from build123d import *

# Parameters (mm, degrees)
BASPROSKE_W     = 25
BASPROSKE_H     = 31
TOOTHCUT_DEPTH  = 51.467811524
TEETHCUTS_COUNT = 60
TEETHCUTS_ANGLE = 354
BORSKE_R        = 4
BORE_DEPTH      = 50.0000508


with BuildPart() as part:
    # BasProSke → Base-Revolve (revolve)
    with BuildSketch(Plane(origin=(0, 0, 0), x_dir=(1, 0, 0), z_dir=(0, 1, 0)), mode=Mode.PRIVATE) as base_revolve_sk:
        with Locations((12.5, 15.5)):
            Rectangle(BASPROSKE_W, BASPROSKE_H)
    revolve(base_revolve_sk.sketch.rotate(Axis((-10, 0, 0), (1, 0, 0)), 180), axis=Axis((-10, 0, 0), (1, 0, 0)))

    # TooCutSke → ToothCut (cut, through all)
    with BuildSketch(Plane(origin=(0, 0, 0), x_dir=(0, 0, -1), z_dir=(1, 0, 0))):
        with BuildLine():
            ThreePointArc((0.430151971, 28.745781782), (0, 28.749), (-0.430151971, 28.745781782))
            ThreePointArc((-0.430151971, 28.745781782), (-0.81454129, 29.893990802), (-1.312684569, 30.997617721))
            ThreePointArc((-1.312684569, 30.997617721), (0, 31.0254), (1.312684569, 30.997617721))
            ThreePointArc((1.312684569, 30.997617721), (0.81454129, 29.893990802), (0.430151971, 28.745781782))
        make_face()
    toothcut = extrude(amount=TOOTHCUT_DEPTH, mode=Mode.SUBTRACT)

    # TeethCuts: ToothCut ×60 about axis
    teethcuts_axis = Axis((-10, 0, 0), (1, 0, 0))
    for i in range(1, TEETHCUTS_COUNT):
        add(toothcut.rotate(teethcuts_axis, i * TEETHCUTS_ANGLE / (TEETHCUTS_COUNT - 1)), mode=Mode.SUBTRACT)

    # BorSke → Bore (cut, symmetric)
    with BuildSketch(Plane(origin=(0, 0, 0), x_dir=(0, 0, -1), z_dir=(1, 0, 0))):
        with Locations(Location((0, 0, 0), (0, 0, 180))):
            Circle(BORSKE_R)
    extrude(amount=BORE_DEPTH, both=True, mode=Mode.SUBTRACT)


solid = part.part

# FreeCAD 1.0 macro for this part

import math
import FreeCAD as App
import Part
import Sketcher


def add_polygon(sketch, points):
    """Adds a closed chain of lines whose ends are joined by coincident constraints."""
    first, n = sketch.GeometryCount, len(points)
    for a, b in zip(points, points[1:] + points[:1]):
        sketch.addGeometry(Part.LineSegment(App.Vector(*a, 0), App.Vector(*b, 0)), False)
    for i in range(n):
        sketch.addConstraint(Sketcher.Constraint("Coincident", first + i, 2, first + (i + 1) % n, 1))

doc = App.newDocument("Part")
body = doc.addObject("PartDesign::Body", "Body")

# Sketch on XZ plane
sketch1 = doc.addObject("Sketcher::SketchObject", "Sketch")
body.addObject(sketch1)
sketch1.AttachmentSupport = (doc.XZ_Plane, [""])
sketch1.MapMode = "FlatFace"
add_polygon(sketch1, [(0, -31), (0, 0), (25, 0), (25, -31)])  # lines 0-3
sketch1.addConstraint([
    Sketcher.Constraint("Vertical", 0),
    Sketcher.Constraint("Horizontal", 1),
    Sketcher.Constraint("Vertical", 2),
    Sketcher.Constraint("Horizontal", 3),
    Sketcher.Constraint("Coincident", 0, 2, -1, 1),
    Sketcher.Constraint("DistanceX", 1, 1, 1, 2, 25.0),
    Sketcher.Constraint("DistanceY", 0, 1, 0, 2, 31.0),
])
revolution = doc.addObject("PartDesign::Revolution", "Revolution")
body.addObject(revolution)
revolution.Profile = sketch1
revolution.ReferenceAxis = (sketch1, ["H_Axis"])
revolution.Angle = 360

# Sketch on YZ plane
sketch2 = doc.addObject("Sketcher::SketchObject", "Sketch001")
body.addObject(sketch2)
sketch2.AttachmentSupport = (doc.YZ_Plane, [""])
sketch2.MapMode = "FlatFace"
sketch2.addGeometry([
    Part.ArcOfCircle(Part.Circle(App.Vector(0.000004, 0, 0), App.Vector(0, 0, 1), 28.748996), math.radians(-0.85731), math.radians(0.85731)),
    Part.ArcOfCircle(Part.Circle(App.Vector(25.515264, -11.98713, 0), App.Vector(0, 0, 1), 12), math.radians(62.815145), math.radians(74.382749)),
    Part.ArcOfCircle(Part.Circle(App.Vector(0, 0, 0), App.Vector(0, 0, 1), 31.0254), math.radians(-2.424908), math.radians(2.424908)),
    Part.ArcOfCircle(Part.Circle(App.Vector(25.515264, 11.98713, 0), App.Vector(0, 0, 1), 12), math.radians(-74.382749), math.radians(-62.815145)),
], False)
sketch2.addConstraint([
    Sketcher.Constraint("Coincident", 0, 1, 1, 2),
    Sketcher.Constraint("Coincident", 1, 1, 2, 1),
    Sketcher.Constraint("Coincident", 2, 2, 3, 2),
    Sketcher.Constraint("Coincident", 3, 1, 0, 2),
    Sketcher.Constraint("Coincident", 0, 3, -1, 1),
    Sketcher.Constraint("Coincident", 2, 3, -1, 1),
    Sketcher.Constraint("Equal", 1, 3),
    Sketcher.Constraint("Symmetric", 1, 3, 3, 3, -1),
    Sketcher.Constraint("Radius", 1, 12.0),
    Sketcher.Constraint("Radius", 2, 31.0254),
    Sketcher.Constraint("Radius", 0, 28.748996),
    Sketcher.Constraint("DistanceY", 1, 3, -1, 1, 11.98713),
    Sketcher.Constraint("DistanceY", 0, 1, -1, 1, 0.430152),
])
pocket1 = doc.addObject("PartDesign::Pocket", "Pocket")
body.addObject(pocket1)
pocket1.Profile = sketch2
pocket1.Type = "ThroughAll"
pocket1.Reversed = True
doc.recompute()

polarpattern = doc.addObject("PartDesign::PolarPattern", "PolarPattern")
body.addObject(polarpattern)
polarpattern.Originals = [pocket1]
polarpattern.Axis = (doc.X_Axis, [""])
polarpattern.Angle = 360
polarpattern.Occurrences = 60
body.Tip = polarpattern

# Sketch on YZ plane
sketch3 = doc.addObject("Sketcher::SketchObject", "Sketch002")
body.addObject(sketch3)
sketch3.AttachmentSupport = (doc.YZ_Plane, [""])
sketch3.MapMode = "FlatFace"
sketch3.addGeometry(Part.Circle(App.Vector(0, 0, 0), App.Vector(0, 0, 1), 4), False)
sketch3.addConstraint([
    Sketcher.Constraint("Coincident", 0, 3, -1, 1),
    Sketcher.Constraint("Diameter", 0, 8.0),
])
pocket2 = doc.addObject("PartDesign::Pocket", "Pocket001")
body.addObject(pocket2)
pocket2.Profile = sketch3
pocket2.Length = 100.000102
pocket2.Midplane = True

doc.recompute()
